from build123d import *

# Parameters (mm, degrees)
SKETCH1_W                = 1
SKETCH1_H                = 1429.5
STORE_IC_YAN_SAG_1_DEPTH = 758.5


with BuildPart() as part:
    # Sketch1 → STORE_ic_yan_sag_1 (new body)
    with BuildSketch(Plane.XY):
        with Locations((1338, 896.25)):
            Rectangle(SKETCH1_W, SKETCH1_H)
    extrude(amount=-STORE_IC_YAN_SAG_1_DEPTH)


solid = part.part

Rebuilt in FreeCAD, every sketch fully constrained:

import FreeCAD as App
import Part
import Sketcher
Q = App.Units.Quantity


def add_polygon(sketch, points):
    """Adds a closed chain of lines whose ends are joined by coincident constraints."""
    first, n = sketch.GeometryCount, len(points)
    for a, b in zip(points, points[1:] + points[:1]):
        sketch.addGeometry(Part.LineSegment(App.Vector(*a, 0), App.Vector(*b, 0)), False)
    for i in range(n):
        sketch.addConstraint(Sketcher.Constraint("Coincident", first + i, 2, first + (i + 1) % n, 1))

doc = App.newDocument("Part")
params = doc.addObject("Spreadsheet::Sheet", "Params")
for row, (alias, value) in enumerate([
    ("sketch1_width", "1 mm"),
    ("sketch1_height", "1429.5 mm"),
    ("pad1_length", "758.5 mm"),
], start=1):
    params.set(f"A{row}", alias)
    params.set(f"B{row}", "=" + value)
    params.setAlias(f"B{row}", alias)

body = doc.addObject("PartDesign::Body", "Body")

# Sketch on XY plane
sketch1 = doc.addObject("Sketcher::SketchObject", "Sketch")
body.addObject(sketch1)
sketch1.AttachmentSupport = (doc.XY_Plane, [""])
sketch1.MapMode = "FlatFace"
add_polygon(sketch1, [(1337.5, 1611), (1337.5, 181.5), (1338.5, 181.5), (1338.5, 1611)])  # lines 0-3
sketch1.addConstraint([
    Sketcher.Constraint("Vertical", 0),
    Sketcher.Constraint("Horizontal", 1),
    Sketcher.Constraint("Vertical", 2),
    Sketcher.Constraint("Horizontal", 3),
    Sketcher.Constraint("DistanceX", 1, 1, 1, 2, Q("1 mm")),
    Sketcher.Constraint("DistanceY", 0, 2, 0, 1, Q("1429.5 mm")),
    Sketcher.Constraint("DistanceY", -1, 1, 2, 2, Q("1611 mm")),
    Sketcher.Constraint("DistanceX", -1, 1, 0, 2, Q("1337.5 mm")),
])
sketch1.setExpression("Constraints[8]", "Params.sketch1_width")
sketch1.setExpression("Constraints[9]", "Params.sketch1_height")
pad1 = doc.addObject("PartDesign::Pad", "Pad")
body.addObject(pad1)
pad1.Profile = sketch1
pad1.setExpression("Length", "Params.pad1_length")
pad1.Reversed = True

doc.recompute()
